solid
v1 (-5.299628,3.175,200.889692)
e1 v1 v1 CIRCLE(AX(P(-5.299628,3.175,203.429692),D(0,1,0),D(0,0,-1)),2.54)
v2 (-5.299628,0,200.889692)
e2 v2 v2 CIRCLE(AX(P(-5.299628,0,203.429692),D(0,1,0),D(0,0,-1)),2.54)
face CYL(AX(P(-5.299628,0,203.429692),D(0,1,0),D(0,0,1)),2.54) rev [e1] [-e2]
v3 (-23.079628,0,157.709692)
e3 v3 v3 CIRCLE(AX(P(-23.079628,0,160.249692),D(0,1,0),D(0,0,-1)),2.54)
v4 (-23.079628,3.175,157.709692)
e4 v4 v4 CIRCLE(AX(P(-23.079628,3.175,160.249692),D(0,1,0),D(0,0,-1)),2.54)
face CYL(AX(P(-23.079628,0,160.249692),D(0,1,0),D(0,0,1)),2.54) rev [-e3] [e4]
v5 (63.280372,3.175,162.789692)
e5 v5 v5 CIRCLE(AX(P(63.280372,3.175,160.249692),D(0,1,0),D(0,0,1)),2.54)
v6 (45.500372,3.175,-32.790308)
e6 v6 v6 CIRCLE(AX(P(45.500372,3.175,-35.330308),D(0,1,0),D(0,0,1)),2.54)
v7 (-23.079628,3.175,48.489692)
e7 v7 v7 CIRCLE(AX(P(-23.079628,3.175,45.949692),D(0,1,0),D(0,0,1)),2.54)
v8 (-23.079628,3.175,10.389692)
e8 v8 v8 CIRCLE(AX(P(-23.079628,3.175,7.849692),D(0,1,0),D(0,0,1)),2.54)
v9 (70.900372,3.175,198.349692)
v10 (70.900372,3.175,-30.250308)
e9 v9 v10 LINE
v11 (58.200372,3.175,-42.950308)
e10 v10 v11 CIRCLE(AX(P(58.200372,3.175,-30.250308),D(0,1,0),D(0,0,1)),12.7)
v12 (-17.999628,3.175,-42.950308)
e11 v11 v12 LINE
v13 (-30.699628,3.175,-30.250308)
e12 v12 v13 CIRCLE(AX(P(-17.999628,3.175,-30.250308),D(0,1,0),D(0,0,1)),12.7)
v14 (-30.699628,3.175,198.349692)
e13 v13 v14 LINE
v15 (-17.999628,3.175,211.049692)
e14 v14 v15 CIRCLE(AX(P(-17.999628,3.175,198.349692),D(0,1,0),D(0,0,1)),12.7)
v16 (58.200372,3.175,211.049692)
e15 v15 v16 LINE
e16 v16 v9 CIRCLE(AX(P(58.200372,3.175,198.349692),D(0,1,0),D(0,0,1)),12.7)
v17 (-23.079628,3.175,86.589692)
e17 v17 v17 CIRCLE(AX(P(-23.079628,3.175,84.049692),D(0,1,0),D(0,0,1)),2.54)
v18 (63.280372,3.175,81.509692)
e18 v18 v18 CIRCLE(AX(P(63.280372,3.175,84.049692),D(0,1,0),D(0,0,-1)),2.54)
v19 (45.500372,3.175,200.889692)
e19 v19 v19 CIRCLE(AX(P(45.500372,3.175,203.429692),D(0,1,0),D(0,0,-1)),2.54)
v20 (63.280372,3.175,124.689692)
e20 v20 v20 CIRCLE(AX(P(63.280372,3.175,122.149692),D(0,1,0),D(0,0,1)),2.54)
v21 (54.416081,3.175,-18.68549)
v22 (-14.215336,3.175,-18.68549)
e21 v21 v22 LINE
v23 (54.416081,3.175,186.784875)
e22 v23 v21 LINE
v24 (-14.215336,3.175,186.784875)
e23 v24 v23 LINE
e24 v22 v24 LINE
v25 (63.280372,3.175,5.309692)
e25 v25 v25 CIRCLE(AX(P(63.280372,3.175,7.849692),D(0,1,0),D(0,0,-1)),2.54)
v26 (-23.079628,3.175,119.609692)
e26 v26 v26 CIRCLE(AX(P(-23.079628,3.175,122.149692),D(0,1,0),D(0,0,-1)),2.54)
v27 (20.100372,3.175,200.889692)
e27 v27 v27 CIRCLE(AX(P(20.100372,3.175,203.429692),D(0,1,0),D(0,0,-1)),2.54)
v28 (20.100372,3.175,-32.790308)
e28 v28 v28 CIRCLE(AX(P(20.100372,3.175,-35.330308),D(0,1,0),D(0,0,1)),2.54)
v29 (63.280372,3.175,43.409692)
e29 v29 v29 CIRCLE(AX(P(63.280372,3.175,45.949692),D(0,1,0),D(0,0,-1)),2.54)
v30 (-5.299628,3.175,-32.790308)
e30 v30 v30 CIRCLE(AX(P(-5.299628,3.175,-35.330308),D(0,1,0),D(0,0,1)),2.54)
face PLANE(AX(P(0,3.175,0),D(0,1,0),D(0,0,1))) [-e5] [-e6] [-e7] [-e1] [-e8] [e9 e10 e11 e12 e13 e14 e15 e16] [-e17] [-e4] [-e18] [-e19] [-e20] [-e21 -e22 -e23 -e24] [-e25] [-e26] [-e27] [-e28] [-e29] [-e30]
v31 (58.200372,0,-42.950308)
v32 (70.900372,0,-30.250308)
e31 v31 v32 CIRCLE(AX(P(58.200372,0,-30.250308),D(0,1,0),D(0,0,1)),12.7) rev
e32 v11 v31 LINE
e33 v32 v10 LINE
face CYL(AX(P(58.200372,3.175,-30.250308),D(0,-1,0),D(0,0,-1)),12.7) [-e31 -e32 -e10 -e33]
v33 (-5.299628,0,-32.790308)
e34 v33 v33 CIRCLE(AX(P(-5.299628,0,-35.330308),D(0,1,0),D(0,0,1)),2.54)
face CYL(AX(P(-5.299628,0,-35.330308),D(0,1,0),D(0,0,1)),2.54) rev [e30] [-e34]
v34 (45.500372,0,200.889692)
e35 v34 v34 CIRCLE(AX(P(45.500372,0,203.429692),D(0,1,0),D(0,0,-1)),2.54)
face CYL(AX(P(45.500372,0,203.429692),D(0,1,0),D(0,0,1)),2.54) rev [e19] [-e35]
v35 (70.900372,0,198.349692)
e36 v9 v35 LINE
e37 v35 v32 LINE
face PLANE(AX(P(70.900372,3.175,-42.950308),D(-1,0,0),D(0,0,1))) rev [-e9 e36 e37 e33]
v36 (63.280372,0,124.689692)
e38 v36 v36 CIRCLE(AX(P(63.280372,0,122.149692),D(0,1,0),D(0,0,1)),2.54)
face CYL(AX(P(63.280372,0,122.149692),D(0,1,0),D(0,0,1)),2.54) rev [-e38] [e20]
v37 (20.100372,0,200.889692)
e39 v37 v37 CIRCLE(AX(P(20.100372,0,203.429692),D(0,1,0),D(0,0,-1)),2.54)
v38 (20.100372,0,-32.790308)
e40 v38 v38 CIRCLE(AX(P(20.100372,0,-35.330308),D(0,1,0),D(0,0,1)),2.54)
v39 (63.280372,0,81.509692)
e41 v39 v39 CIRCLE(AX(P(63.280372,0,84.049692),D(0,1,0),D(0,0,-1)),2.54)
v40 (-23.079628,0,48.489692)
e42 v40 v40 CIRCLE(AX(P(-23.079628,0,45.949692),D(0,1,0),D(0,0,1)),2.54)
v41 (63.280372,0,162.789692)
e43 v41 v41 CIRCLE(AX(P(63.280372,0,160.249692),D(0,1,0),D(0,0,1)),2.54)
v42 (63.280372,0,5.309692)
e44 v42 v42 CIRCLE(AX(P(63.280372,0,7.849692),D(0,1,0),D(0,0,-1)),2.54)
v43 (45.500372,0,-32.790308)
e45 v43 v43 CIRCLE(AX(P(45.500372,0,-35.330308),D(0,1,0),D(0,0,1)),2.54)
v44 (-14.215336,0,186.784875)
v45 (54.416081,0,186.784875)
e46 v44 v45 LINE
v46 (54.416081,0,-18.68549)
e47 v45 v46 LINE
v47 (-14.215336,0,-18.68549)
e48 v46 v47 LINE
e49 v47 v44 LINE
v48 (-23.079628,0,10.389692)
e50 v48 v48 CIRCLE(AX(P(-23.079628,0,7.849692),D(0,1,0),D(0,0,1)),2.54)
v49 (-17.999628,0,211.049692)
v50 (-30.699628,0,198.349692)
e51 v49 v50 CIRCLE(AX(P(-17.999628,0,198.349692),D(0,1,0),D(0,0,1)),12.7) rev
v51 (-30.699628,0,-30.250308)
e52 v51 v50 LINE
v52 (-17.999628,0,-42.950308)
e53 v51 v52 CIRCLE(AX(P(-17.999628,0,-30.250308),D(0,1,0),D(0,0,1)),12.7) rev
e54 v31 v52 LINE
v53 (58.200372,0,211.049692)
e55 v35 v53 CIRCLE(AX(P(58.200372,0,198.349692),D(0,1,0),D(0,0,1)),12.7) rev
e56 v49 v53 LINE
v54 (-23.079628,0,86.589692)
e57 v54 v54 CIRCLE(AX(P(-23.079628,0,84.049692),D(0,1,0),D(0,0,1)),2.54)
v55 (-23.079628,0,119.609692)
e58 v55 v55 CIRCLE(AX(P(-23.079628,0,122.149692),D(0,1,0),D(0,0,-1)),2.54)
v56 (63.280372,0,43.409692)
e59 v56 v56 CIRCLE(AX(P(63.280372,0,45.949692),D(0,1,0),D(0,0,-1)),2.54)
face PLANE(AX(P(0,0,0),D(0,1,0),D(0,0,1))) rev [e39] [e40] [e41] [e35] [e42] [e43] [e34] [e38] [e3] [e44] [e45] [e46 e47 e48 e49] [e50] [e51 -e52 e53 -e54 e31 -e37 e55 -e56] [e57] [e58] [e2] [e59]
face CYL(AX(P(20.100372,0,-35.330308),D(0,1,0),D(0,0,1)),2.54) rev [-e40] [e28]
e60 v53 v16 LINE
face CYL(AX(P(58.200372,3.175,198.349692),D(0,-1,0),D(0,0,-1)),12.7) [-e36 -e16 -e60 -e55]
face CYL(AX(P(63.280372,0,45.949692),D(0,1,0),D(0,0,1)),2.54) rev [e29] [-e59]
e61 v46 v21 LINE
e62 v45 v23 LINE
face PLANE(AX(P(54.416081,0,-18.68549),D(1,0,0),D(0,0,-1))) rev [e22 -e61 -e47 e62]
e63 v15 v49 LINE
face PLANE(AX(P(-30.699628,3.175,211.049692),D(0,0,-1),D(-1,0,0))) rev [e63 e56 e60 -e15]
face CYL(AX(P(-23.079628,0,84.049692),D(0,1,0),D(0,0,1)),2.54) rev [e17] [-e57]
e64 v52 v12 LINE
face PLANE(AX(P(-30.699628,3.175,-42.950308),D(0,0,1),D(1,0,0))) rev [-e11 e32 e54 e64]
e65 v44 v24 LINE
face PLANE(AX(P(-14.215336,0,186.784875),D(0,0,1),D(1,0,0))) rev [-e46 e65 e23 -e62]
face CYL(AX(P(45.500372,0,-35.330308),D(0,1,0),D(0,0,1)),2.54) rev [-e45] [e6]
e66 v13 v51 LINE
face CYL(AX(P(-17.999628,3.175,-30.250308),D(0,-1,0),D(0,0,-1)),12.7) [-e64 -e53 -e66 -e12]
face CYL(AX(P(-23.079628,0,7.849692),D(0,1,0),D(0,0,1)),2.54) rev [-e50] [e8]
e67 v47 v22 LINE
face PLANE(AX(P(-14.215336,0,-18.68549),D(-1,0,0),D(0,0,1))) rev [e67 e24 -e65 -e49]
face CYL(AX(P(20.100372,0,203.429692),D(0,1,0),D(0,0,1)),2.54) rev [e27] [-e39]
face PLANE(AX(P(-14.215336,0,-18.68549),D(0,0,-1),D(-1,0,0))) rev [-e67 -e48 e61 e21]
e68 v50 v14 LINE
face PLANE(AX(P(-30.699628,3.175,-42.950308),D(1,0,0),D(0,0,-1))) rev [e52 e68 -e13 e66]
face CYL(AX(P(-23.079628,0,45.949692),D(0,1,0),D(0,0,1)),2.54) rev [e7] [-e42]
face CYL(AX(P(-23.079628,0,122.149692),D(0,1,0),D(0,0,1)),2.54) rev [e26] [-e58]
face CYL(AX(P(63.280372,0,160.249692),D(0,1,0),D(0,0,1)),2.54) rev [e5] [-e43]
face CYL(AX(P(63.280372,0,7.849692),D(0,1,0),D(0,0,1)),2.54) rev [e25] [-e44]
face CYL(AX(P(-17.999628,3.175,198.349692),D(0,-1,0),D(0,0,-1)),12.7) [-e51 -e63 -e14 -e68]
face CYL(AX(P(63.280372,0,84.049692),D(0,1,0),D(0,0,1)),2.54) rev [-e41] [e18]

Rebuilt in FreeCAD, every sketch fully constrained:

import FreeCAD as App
import Part
import Sketcher

V = App.Vector
Q = App.Units.Quantity


def edges_at(feature, points):
    """Names of the edges that pass closest to the given points."""
    edges = feature.Shape.Edges
    near = lambda p: min(range(len(edges)), key=lambda i: edges[i].distToShape(Part.Vertex(*p))[0])
    return sorted({f"Edge{near(p) + 1}" for p in points})


def add_polygon(sketch, points):
    """Adds a closed chain of lines whose ends are joined by coincident constraints."""
    first, n = sketch.GeometryCount, len(points)
    for a, b in zip(points, points[1:] + points[:1]):
        sketch.addGeometry(Part.LineSegment(App.Vector(*a, 0), App.Vector(*b, 0)), False)
    for i in range(n):
        sketch.addConstraint(Sketcher.Constraint("Coincident", first + i, 2, first + (i + 1) % n, 1))

doc = App.newDocument("Part")
body = doc.addObject("PartDesign::Body", "Body")

sketch1 = doc.addObject("Sketcher::SketchObject", "Sketch")
body.addObject(sketch1)
sketch1.AttachmentSupport = (doc.XZ_Plane, [""])
sketch1.MapMode = "FlatFace"
add_polygon(sketch1, [(-30.699628, -42.950308), (-30.699628, 211.049692), (70.900372, 211.049692), (70.900372, -42.950308)])
sketch1.addConstraint([
    Sketcher.Constraint("Vertical", 0),
    Sketcher.Constraint("Horizontal", 1),
    Sketcher.Constraint("Vertical", 2),
    Sketcher.Constraint("Horizontal", 3),
    Sketcher.Constraint("DistanceX", 1, 1, 1, 2, Q("4 in")),
    Sketcher.Constraint("DistanceY", 0, 1, 0, 2, Q("10 in")),
    Sketcher.Constraint("DistanceX", 0, 2, -1, 1, Q("30.699628 mm")),
    Sketcher.Constraint("DistanceY", -1, 1, 0, 2, Q("211.049692 mm")),
])
pad1 = doc.addObject("PartDesign::Pad", "Pad")
body.addObject(pad1)
pad1.Profile = sketch1
pad1.Length = Q("0.125 in")
pad1.Reversed = True

sketch2 = doc.addObject("Sketcher::SketchObject", "Sketch001")
body.addObject(sketch2)
sketch2.AttachmentSupport = (doc.XZ_Plane, [""])
sketch2.MapMode = "FlatFace"
sketch2.AttachmentOffset = App.Placement(V(0, 0, -0.125 * 25.4), App.Rotation())
sketch2.addGeometry([
    Part.Circle(V(-5.299628, -35.330308, 0), V(0, 0, 1), 2.54),
    Part.Circle(V(20.100372, -35.330308, 0), V(0, 0, 1), 2.54),
    Part.Circle(V(45.500372, -35.330308, 0), V(0, 0, 1), 2.54),
    Part.Circle(V(-23.079628, 84.049692, 0), V(0, 0, 1), 2.54),
    Part.Circle(V(-23.079628, 45.949692, 0), V(0, 0, 1), 2.54),
    Part.Circle(V(-23.079628, 7.849692, 0), V(0, 0, 1), 2.54),
    Part.Circle(V(63.280372, 7.849692, 0), V(0, 0, 1), 2.54),
    Part.Circle(V(63.280372, 45.949692, 0), V(0, 0, 1), 2.54),
    Part.Circle(V(63.280372, 84.049692, 0), V(0, 0, 1), 2.54),
    Part.Circle(V(63.280372, 122.149692, 0), V(0, 0, 1), 2.54),
    Part.Circle(V(63.280372, 160.249692, 0), V(0, 0, 1), 2.54),
    Part.Circle(V(-23.079628, 160.249692, 0), V(0, 0, 1), 2.54),
    Part.Circle(V(-23.079628, 122.149692, 0), V(0, 0, 1), 2.54),
    Part.Circle(V(45.500372, 203.429692, 0), V(0, 0, 1), 2.54),
    Part.Circle(V(20.100372, 203.429692, 0), V(0, 0, 1), 2.54),
    Part.Circle(V(-5.299628, 203.429692, 0), V(0, 0, 1), 2.54),
], False)
sketch2.addConstraint([
    Sketcher.Constraint("Equal", 0, 1),
    Sketcher.Constraint("Equal", 1, 2),
    Sketcher.Constraint("Equal", 2, 3),
    Sketcher.Constraint("Equal", 3, 4),
    Sketcher.Constraint("Equal", 4, 5),
    Sketcher.Constraint("Equal", 5, 6),
    Sketcher.Constraint("Equal", 6, 7),
    Sketcher.Constraint("Equal", 7, 8),
    Sketcher.Constraint("Equal", 8, 9),
    Sketcher.Constraint("Equal", 9, 10),
    Sketcher.Constraint("Equal", 10, 11),
    Sketcher.Constraint("Equal", 11, 12),
    Sketcher.Constraint("Equal", 12, 13),
    Sketcher.Constraint("Equal", 13, 14),
    Sketcher.Constraint("Equal", 14, 15),
    Sketcher.Constraint("Horizontal", 0, 3, 1, 3),
    Sketcher.Constraint("Horizontal", 1, 3, 2, 3),
    Sketcher.Constraint("Horizontal", 5, 3, 6, 3),
    Sketcher.Constraint("Horizontal", 4, 3, 7, 3),
    Sketcher.Constraint("Horizontal", 3, 3, 8, 3),
    Sketcher.Constraint("Horizontal", 10, 3, 11, 3),
    Sketcher.Constraint("Horizontal", 9, 3, 12, 3),
    Sketcher.Constraint("Horizontal", 13, 3, 14, 3),
    Sketcher.Constraint("Horizontal", 14, 3, 15, 3),
    Sketcher.Constraint("Vertical", 3, 3, 4, 3),
    Sketcher.Constraint("Vertical", 4, 3, 5, 3),
    Sketcher.Constraint("Vertical", 6, 3, 7, 3),
    Sketcher.Constraint("Vertical", 7, 3, 8, 3),
    Sketcher.Constraint("Vertical", 8, 3, 9, 3),
    Sketcher.Constraint("Vertical", 9, 3, 10, 3),
    Sketcher.Constraint("Vertical", 5, 3, 11, 3),
    Sketcher.Constraint("Vertical", 11, 3, 12, 3),
    Sketcher.Constraint("Vertical", 2, 3, 13, 3),
    Sketcher.Constraint("Vertical", 1, 3, 14, 3),
    Sketcher.Constraint("Vertical", 0, 3, 15, 3),
    Sketcher.Constraint("Diameter", 0, Q("0.2 in")),
    Sketcher.Constraint("DistanceX", 0, 3, 1, 3, Q("1 in")),
    Sketcher.Constraint("DistanceX", 1, 3, 2, 3, Q("1 in")),
    Sketcher.Constraint("DistanceY", 5, 3, 3, 3, Q("3 in")),
    Sketcher.Constraint("DistanceY", 7, 3, 9, 3, Q("3 in")),
    Sketcher.Constraint("DistanceY", 8, 3, 10, 3, Q("3 in")),
    Sketcher.Constraint("DistanceX", 3, 3, 0, 3, Q("0.7 in")),
    Sketcher.Constraint("DistanceY", 0, 3, 3, 3, Q("4.7 in")),
    Sketcher.Constraint("DistanceY", 4, 3, 3, 3, Q("1.5 in")),
    Sketcher.Constraint("DistanceX", 2, 3, 6, 3, Q("0.7 in")),
    Sketcher.Constraint("DistanceY", 10, 3, 13, 3, Q("1.7 in")),
    Sketcher.Constraint("DistanceX", 0, 3, -1, 1, Q("5.299628 mm")),
    Sketcher.Constraint("DistanceY", 0, 3, -1, 1, Q("35.330308 mm")),
])
pocket1 = doc.addObject("PartDesign::Pocket", "Pocket")
body.addObject(pocket1)
pocket1.Profile = sketch2
pocket1.Type = "ThroughAll"
pocket1.Reversed = True
doc.recompute()

fillet = doc.addObject("PartDesign::Fillet", "Fillet")
body.addObject(fillet)
fillet.Base = (pocket1, edges_at(pocket1, [
    (-30.7, 1.587, -42.95),
    (70.9, 1.587, -42.95),
    (70.9, 1.587, 211.05),
    (-30.7, 1.587, 211.05),
]))
fillet.Radius = Q("0.5 in")

sketch3 = doc.addObject("Sketcher::SketchObject", "Sketch002")
body.addObject(sketch3)
sketch3.AttachmentSupport = (doc.XZ_Plane, [""])
sketch3.MapMode = "FlatFace"
sketch3.AttachmentOffset = App.Placement(V(0, 0, -0.125 * 25.4), App.Rotation())
add_polygon(sketch3, [(-14.215336, -18.68549), (-14.215336, 186.784875), (54.416081, 186.784875), (54.416081, -18.68549)])
sketch3.addConstraint([
    Sketcher.Constraint("Vertical", 0),
    Sketcher.Constraint("Horizontal", 1),
    Sketcher.Constraint("Vertical", 2),
    Sketcher.Constraint("Horizontal", 3),
    Sketcher.Constraint("DistanceX", 1, 1, 1, 2, Q("68.631417 mm")),
    Sketcher.Constraint("DistanceY", 0, 1, 0, 2, Q("205.470364 mm")),
    Sketcher.Constraint("DistanceX", -1, 1, 1, 2, Q("54.416081 mm")),
    Sketcher.Constraint("DistanceY", 2, 2, -1, 1, Q("18.68549 mm")),
])
pocket2 = doc.addObject("PartDesign::Pocket", "Pocket001")
body.addObject(pocket2)
pocket2.Profile = sketch3
pocket2.Type = "ThroughAll"
pocket2.Reversed = True

doc.recompute()
